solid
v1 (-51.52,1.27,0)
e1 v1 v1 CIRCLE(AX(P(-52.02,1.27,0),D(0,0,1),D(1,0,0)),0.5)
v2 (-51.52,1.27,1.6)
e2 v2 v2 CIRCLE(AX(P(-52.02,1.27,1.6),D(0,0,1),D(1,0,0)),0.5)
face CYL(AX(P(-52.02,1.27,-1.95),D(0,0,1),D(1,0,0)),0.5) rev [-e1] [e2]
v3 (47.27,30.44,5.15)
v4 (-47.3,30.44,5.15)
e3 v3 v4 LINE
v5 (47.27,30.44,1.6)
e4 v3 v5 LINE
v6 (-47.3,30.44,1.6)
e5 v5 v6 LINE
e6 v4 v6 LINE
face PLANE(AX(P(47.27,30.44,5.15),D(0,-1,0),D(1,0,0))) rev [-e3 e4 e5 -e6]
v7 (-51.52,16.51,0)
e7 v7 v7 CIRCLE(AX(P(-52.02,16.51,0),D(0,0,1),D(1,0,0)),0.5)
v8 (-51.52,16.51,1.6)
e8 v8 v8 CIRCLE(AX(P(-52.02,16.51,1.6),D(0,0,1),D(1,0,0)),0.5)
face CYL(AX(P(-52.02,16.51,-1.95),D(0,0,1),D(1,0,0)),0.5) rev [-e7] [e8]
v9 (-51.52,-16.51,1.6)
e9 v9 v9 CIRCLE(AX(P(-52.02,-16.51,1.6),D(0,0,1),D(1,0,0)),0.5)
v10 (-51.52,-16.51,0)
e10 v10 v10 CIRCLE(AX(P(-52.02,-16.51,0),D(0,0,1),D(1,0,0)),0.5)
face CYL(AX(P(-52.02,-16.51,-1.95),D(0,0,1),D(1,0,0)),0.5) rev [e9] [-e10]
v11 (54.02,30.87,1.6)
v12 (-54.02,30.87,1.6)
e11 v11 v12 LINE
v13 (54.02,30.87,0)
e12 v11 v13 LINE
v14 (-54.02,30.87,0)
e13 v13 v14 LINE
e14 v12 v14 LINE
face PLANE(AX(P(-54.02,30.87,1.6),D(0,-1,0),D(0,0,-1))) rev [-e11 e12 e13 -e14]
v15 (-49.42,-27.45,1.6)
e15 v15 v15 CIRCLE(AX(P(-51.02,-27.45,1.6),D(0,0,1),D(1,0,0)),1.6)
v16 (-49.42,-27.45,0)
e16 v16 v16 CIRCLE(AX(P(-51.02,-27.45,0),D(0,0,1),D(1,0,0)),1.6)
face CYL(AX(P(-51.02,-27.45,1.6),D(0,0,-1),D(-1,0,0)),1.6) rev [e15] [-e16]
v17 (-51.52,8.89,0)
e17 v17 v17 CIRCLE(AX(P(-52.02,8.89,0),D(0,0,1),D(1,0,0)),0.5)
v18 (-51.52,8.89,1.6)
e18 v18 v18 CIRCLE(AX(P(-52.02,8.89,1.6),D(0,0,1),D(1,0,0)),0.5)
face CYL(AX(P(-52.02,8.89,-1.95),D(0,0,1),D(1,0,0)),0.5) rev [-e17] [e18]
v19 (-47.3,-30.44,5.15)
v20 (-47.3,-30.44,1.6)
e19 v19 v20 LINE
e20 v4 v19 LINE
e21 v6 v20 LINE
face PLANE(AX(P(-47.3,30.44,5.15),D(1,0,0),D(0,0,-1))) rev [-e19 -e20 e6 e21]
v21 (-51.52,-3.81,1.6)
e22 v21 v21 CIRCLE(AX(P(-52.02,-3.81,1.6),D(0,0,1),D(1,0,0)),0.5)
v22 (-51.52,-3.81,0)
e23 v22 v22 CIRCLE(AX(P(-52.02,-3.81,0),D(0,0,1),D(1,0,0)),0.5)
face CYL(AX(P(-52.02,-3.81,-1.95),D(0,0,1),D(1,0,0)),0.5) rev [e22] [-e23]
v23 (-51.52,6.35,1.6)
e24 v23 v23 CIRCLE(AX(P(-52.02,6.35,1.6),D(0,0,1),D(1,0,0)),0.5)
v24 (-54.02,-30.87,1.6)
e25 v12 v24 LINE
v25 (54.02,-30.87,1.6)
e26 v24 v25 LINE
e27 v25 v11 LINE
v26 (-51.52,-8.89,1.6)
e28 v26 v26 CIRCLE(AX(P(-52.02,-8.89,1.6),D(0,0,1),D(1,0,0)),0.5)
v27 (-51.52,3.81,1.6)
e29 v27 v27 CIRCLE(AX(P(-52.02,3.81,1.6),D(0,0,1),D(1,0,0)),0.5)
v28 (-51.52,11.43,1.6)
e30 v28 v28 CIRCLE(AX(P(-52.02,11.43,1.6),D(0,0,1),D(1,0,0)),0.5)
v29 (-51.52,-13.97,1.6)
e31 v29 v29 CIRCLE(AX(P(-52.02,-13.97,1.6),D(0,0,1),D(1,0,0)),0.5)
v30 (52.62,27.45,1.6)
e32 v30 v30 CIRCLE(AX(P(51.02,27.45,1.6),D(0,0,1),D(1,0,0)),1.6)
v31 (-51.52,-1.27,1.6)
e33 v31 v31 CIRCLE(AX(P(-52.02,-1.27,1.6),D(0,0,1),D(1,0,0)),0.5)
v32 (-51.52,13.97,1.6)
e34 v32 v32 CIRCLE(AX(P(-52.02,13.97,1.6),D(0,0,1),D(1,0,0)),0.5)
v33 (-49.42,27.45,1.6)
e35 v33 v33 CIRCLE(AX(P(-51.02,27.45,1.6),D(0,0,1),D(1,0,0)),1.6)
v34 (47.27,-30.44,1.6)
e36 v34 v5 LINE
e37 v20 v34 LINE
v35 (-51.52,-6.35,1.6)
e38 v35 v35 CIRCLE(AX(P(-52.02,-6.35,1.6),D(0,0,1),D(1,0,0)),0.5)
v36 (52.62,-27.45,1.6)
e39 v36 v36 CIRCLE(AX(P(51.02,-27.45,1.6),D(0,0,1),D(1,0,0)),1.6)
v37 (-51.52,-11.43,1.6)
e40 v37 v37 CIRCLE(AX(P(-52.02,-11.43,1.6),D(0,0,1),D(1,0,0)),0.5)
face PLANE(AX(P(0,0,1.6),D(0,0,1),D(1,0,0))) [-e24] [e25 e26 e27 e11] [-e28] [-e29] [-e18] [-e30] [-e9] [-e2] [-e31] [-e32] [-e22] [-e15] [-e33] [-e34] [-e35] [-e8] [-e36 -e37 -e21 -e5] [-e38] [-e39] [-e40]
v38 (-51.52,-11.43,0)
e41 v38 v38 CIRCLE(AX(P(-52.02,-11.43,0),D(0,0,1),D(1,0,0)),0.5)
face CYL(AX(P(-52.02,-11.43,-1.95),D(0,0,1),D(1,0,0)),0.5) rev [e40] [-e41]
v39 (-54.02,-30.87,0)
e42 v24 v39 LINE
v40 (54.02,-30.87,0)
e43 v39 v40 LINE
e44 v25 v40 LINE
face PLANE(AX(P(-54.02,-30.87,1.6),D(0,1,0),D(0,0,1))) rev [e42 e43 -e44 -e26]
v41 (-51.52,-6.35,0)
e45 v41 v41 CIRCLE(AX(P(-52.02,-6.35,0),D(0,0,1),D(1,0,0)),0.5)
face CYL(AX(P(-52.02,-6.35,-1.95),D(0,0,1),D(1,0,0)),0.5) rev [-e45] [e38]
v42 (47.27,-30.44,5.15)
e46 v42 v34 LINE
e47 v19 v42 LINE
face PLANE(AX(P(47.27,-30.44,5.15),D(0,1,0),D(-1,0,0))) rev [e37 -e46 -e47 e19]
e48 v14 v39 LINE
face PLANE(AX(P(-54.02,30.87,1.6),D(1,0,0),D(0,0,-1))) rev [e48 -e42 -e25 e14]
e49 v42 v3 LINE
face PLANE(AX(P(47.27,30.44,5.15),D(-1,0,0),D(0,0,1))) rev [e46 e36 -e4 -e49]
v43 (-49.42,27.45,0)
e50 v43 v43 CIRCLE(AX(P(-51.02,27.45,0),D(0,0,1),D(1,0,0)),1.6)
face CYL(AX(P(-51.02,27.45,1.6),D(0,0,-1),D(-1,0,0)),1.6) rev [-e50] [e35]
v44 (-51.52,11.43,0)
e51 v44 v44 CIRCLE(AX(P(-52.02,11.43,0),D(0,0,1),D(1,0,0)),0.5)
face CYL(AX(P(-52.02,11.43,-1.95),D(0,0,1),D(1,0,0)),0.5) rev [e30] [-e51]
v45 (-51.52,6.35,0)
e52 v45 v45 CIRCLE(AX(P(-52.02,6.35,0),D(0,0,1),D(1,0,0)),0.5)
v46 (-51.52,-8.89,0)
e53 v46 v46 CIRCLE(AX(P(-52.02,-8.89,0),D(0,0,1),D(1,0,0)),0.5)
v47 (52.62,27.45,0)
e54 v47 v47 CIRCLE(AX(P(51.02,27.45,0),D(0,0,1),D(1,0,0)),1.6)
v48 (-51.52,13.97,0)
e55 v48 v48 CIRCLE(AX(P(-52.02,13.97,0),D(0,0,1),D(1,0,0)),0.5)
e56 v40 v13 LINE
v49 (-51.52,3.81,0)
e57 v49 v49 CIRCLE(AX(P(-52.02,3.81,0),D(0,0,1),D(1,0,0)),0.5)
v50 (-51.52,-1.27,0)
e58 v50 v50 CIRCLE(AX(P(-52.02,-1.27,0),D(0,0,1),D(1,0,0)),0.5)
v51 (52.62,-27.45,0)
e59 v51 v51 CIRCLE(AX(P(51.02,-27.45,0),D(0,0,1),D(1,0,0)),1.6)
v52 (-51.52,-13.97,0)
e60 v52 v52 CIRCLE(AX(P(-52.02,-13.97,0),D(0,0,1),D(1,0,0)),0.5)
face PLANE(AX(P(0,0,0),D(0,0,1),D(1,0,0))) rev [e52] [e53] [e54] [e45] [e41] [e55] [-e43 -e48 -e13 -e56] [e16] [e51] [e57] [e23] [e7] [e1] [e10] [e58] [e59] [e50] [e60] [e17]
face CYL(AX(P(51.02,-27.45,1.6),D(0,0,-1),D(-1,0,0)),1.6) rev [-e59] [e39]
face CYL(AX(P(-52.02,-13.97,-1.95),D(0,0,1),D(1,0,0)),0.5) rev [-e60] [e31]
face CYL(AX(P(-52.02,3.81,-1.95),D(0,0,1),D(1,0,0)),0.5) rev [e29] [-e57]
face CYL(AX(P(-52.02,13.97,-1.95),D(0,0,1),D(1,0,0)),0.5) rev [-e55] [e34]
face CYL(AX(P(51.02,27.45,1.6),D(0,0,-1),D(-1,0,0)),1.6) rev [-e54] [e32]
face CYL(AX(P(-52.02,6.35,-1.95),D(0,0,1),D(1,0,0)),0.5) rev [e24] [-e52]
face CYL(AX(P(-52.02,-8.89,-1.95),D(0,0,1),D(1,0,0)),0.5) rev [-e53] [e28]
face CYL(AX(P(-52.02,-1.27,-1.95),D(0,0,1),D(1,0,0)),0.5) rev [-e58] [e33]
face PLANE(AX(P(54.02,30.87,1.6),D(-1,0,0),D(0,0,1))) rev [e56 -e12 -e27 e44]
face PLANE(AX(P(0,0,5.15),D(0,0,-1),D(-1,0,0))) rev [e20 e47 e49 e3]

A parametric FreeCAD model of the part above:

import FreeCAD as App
import Part
import Sketcher

doc = App.newDocument("Part")
body = doc.addObject("PartDesign::Body", "Body")

# Sketch on XY plane
sketch1 = doc.addObject("Sketcher::SketchObject", "Sketch")
body.addObject(sketch1)
sketch1.AttachmentSupport = (doc.XY_Plane, [""])
sketch1.MapMode = "FlatFace"
sketch1.addGeometry([
    Part.LineSegment(App.Vector(-54, 30.9, 0), App.Vector(-54, -30.9, 0)),  # 0
    Part.LineSegment(App.Vector(-54, -30.9, 0), App.Vector(54, -30.9, 0)),  # 1
    Part.LineSegment(App.Vector(54, -30.9, 0), App.Vector(54, 30.9, 0)),  # 2
    Part.LineSegment(App.Vector(54, 30.9, 0), App.Vector(-54, 30.9, 0)),  # 3
    Part.Circle(App.Vector(-51, -27.4, 0), App.Vector(0, 0, 1), 1.6),  # 4
    Part.Circle(App.Vector(51, -27.4, 0), App.Vector(0, 0, 1), 1.6),  # 5
    Part.Circle(App.Vector(-51, 27.4, 0), App.Vector(0, 0, 1), 1.6),  # 6
    Part.Circle(App.Vector(51, 27.4, 0), App.Vector(0, 0, 1), 1.6),  # 7
], False)
sketch1.addConstraint([
    Sketcher.Constraint("Coincident", 0, 2, 1, 1),
    Sketcher.Constraint("Coincident", 1, 2, 2, 1),
    Sketcher.Constraint("Coincident", 2, 2, 3, 1),
    Sketcher.Constraint("Coincident", 3, 2, 0, 1),
    Sketcher.Constraint("Vertical", 0),
    Sketcher.Constraint("Horizontal", 1),
    Sketcher.Constraint("Vertical", 2),
    Sketcher.Constraint("Horizontal", 3),
    Sketcher.Constraint("Equal", 4, 5),
    Sketcher.Constraint("Equal", 5, 6),
    Sketcher.Constraint("Equal", 6, 7),
    Sketcher.Constraint("Symmetric", 5, 3, 6, 3, -1, 1),
    Sketcher.Constraint("Symmetric", 4, 3, 7, 3, -1, 1),
    Sketcher.Constraint("Symmetric", 0, 2, 2, 2, -1, 1),
    Sketcher.Constraint("Symmetric", 4, 3, 5, 3, -2),
    Sketcher.Constraint("Diameter", 4, 3.2),
    Sketcher.Constraint("DistanceX", 0, 2, 4, 3, 3.0),
    Sketcher.Constraint("DistanceX", 1, 1, 1, 2, 108.04),
    Sketcher.Constraint("DistanceY", 0, 2, 0, 1, 61.74),
    Sketcher.Constraint("DistanceY", 4, 3, 6, 3, 54.9),
])
pad1 = doc.addObject("PartDesign::Pad", "Pad")
body.addObject(pad1)
pad1.Profile = sketch1
pad1.Length = 1.6

# Sketch on XY plane
sketch2 = doc.addObject("Sketcher::SketchObject", "Sketch001")
body.addObject(sketch2)
sketch2.AttachmentSupport = (doc.XY_Plane, [""])
sketch2.MapMode = "FlatFace"
sketch2.AttachmentOffset = App.Placement(App.Vector(0, 0, 1.6), App.Rotation())
sketch2.addGeometry([
    Part.LineSegment(App.Vector(-47, 30, 0), App.Vector(-47, -30, 0)),
    Part.LineSegment(App.Vector(-47, -30, 0), App.Vector(47, -30, 0)),
    Part.LineSegment(App.Vector(47, -30, 0), App.Vector(47, 30, 0)),
    Part.LineSegment(App.Vector(47, 30, 0), App.Vector(-47, 30, 0)),
], False)
sketch2.addConstraint([
    Sketcher.Constraint("Coincident", 0, 2, 1, 1),
    Sketcher.Constraint("Coincident", 1, 2, 2, 1),
    Sketcher.Constraint("Coincident", 2, 2, 3, 1),
    Sketcher.Constraint("Coincident", 3, 2, 0, 1),
    Sketcher.Constraint("Vertical", 0),
    Sketcher.Constraint("Horizontal", 1),
    Sketcher.Constraint("Vertical", 2),
    Sketcher.Constraint("Horizontal", 3),
    Sketcher.Constraint("DistanceX", 1, 1, 1, 2, 94.57),
    Sketcher.Constraint("DistanceY", 0, 2, 0, 1, 60.88),
    Sketcher.Constraint("DistanceX", 0, 2, -1, 1, 47.3),
    Sketcher.Constraint("DistanceY", 0, 2, -1, 1, 30.44),
])
pad2 = doc.addObject("PartDesign::Pad", "Pad001")
body.addObject(pad2)
pad2.Profile = sketch2
pad2.Length = 3.55

# Sketch on XY plane
sketch3 = doc.addObject("Sketcher::SketchObject", "Sketch002")
body.addObject(sketch3)
sketch3.AttachmentSupport = (doc.XY_Plane, [""])
sketch3.MapMode = "FlatFace"
sketch3.AttachmentOffset = App.Placement(App.Vector(0, 0, 1.6), App.Rotation())
sketch3.addGeometry([
    Part.Circle(App.Vector(-52, 16.5, 0), App.Vector(0, 0, 1), 0.5),  # 0
    Part.Circle(App.Vector(-52, 14, 0), App.Vector(0, 0, 1), 0.5),  # 1
    Part.Circle(App.Vector(-52, 11.4, 0), App.Vector(0, 0, 1), 0.5),  # 2
    Part.Circle(App.Vector(-52, 8.9, 0), App.Vector(0, 0, 1), 0.5),  # 3
    Part.Circle(App.Vector(-52, 6.3, 0), App.Vector(0, 0, 1), 0.5),  # 4
    Part.Circle(App.Vector(-52, 3.8, 0), App.Vector(0, 0, 1), 0.5),  # 5
    Part.Circle(App.Vector(-52, 1.3, 0), App.Vector(0, 0, 1), 0.5),  # 6
    Part.Circle(App.Vector(-52, -1.3, 0), App.Vector(0, 0, 1), 0.5),  # 7
    Part.Circle(App.Vector(-52, -3.8, 0), App.Vector(0, 0, 1), 0.5),  # 8
    Part.Circle(App.Vector(-52, -6.3, 0), App.Vector(0, 0, 1), 0.5),  # 9
    Part.Circle(App.Vector(-52, -8.9, 0), App.Vector(0, 0, 1), 0.5),  # 10
    Part.Circle(App.Vector(-52, -11.4, 0), App.Vector(0, 0, 1), 0.5),  # 11
    Part.Circle(App.Vector(-52, -14, 0), App.Vector(0, 0, 1), 0.5),  # 12
    Part.Circle(App.Vector(-52, -16.5, 0), App.Vector(0, 0, 1), 0.5),  # 13
], False)
sketch3.addConstraint([
    Sketcher.Constraint("Equal", 0, 1),
    Sketcher.Constraint("Equal", 1, 2),
    Sketcher.Constraint("Equal", 2, 3),
    Sketcher.Constraint("Equal", 3, 4),
    Sketcher.Constraint("Equal", 4, 5),
    Sketcher.Constraint("Equal", 5, 6),
    Sketcher.Constraint("Equal", 6, 7),
    Sketcher.Constraint("Equal", 7, 8),
    Sketcher.Constraint("Equal", 8, 9),
    Sketcher.Constraint("Equal", 9, 10),
    Sketcher.Constraint("Equal", 10, 11),
    Sketcher.Constraint("Equal", 11, 12),
    Sketcher.Constraint("Equal", 12, 13),
    Sketcher.Constraint("Symmetric", 6, 3, 7, 3, -1),
    Sketcher.Constraint("Symmetric", 5, 3, 8, 3, -1),
    Sketcher.Constraint("Symmetric", 4, 3, 9, 3, -1),
    Sketcher.Constraint("Symmetric", 3, 3, 10, 3, -1),
    Sketcher.Constraint("Symmetric", 2, 3, 11, 3, -1),
    Sketcher.Constraint("Symmetric", 1, 3, 12, 3, -1),
    Sketcher.Constraint("Symmetric", 0, 3, 13, 3, -1),
    Sketcher.Constraint("Vertical", 0, 3, 1, 3),
    Sketcher.Constraint("Vertical", 1, 3, 2, 3),
    Sketcher.Constraint("Vertical", 2, 3, 3, 3),
    Sketcher.Constraint("Vertical", 3, 3, 4, 3),
    Sketcher.Constraint("Vertical", 4, 3, 5, 3),
    Sketcher.Constraint("Vertical", 5, 3, 6, 3),
    Sketcher.Constraint("Diameter", 0, 1.0),
    Sketcher.Constraint("DistanceY", 5, 3, 0, 3, 12.7),
    Sketcher.Constraint("DistanceY", 6, 3, 1, 3, 12.7),
    Sketcher.Constraint("DistanceY", 7, 3, 2, 3, 12.7),
    Sketcher.Constraint("DistanceY", 8, 3, 3, 3, 12.7),
    Sketcher.Constraint("DistanceY", 9, 3, 4, 3, 12.7),
    Sketcher.Constraint("DistanceX", 0, 3, -1, 1, 52.02),
    Sketcher.Constraint("DistanceY", -1, 1, 0, 3, 16.51),
    Sketcher.Constraint("DistanceY", -1, 1, 1, 3, 13.97),
])
pocket1 = doc.addObject("PartDesign::Pocket", "Pocket")
body.addObject(pocket1)
pocket1.Profile = sketch3
pocket1.Length = 3.55

doc.recompute()
